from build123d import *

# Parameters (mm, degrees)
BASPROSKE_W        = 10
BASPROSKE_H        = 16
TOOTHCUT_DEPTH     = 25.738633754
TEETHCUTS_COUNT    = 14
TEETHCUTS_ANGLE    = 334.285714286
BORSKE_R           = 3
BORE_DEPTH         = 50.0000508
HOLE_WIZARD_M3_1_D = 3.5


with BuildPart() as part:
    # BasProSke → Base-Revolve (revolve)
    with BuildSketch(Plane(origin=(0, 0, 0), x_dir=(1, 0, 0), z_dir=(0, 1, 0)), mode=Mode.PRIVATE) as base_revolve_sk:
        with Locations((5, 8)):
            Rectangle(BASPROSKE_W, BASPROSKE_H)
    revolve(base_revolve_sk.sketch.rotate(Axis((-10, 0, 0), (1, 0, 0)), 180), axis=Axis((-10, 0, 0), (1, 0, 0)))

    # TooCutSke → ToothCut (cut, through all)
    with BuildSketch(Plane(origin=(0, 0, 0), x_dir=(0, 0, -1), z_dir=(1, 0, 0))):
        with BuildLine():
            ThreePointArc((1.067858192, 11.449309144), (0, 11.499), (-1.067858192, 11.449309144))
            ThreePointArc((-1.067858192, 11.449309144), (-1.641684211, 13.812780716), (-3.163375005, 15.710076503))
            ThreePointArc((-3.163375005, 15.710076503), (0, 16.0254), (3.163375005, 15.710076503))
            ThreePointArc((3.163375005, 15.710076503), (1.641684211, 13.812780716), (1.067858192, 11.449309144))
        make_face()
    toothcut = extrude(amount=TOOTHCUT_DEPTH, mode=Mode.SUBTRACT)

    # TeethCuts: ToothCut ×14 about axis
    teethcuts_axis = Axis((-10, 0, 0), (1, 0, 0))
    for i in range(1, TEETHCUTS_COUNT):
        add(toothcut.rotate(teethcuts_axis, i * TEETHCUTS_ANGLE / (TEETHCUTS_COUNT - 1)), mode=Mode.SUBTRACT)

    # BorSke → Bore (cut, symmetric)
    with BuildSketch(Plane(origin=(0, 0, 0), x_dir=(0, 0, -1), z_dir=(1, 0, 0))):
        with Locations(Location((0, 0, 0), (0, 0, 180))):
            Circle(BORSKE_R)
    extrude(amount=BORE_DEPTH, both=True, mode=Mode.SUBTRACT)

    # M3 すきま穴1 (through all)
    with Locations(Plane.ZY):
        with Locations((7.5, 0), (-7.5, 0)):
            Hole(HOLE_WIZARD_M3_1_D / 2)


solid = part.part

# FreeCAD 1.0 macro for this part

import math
import FreeCAD as App
import Part
import Sketcher
from FreeCAD import Vector

doc = App.newDocument("Part")
params = doc.addObject("Spreadsheet::Sheet", "Params")
for row, (alias, value) in enumerate([
    ("sketch1_width", "10 mm"),
    ("sketch1_height", "16 mm"),
    ("revolution_angle", "360 deg"),
    ("sketch2_radius", "5.6 mm"),
    ("sketch3_diameter", "6 mm"),
    ("pocket2_length", "100.000102 mm"),
    ("sketch4_diameter", "3.5 mm"),
    ("hole_diameter", "3.5 mm"),
], start=1):
    params.set(f"A{row}", alias)
    params.set(f"B{row}", "=" + value)
    params.setAlias(f"B{row}", alias)

body = doc.addObject("PartDesign::Body", "Body")

sketch1 = body.newObject("Sketcher::SketchObject", "Sketch")
sketch1.AttachmentSupport = (doc.getObject("XZ_Plane"), [""])
sketch1.MapMode = "FlatFace"
sketch1.addGeometry([
    Part.LineSegment(Vector(0, -16, 0), Vector(0, 0, 0)),
    Part.LineSegment(Vector(0, 0, 0), Vector(10, 0, 0)),
    Part.LineSegment(Vector(10, 0, 0), Vector(10, -16, 0)),
    Part.LineSegment(Vector(10, -16, 0), Vector(0, -16, 0)),
], False)
sketch1.addConstraint([
    Sketcher.Constraint("Coincident", 0, 2, 1, 1),
    Sketcher.Constraint("Coincident", 1, 2, 2, 1),
    Sketcher.Constraint("Coincident", 2, 2, 3, 1),
    Sketcher.Constraint("Coincident", 3, 2, 0, 1),
    Sketcher.Constraint("Vertical", 0),
    Sketcher.Constraint("Horizontal", 1),
    Sketcher.Constraint("Vertical", 2),
    Sketcher.Constraint("Horizontal", 3),
    Sketcher.Constraint("Coincident", 0, 2, -1, 1),
    Sketcher.Constraint("DistanceX", 1, 1, 1, 2, 10.0),
    Sketcher.Constraint("DistanceY", 0, 1, 0, 2, 16.0),
])
sketch1.setExpression("Constraints[9]", "Params.sketch1_width")
sketch1.setExpression("Constraints[10]", "Params.sketch1_height")
revolution = body.newObject("PartDesign::Revolution", "Revolution")
revolution.Profile = sketch1
revolution.ReferenceAxis = (sketch1, ["H_Axis"])
revolution.setExpression("Angle", "Params.revolution_angle")

sketch2 = body.newObject("Sketcher::SketchObject", "Sketch001")
sketch2.AttachmentSupport = (doc.getObject("YZ_Plane"), [""])
sketch2.MapMode = "FlatFace"
sketch2.addGeometry([
    Part.ArcOfCircle(Part.Circle(Vector(0, 0, 0), Vector(0, 0, 1), 11.5), math.radians(-5.33), math.radians(5.33)),
    Part.ArcOfCircle(Part.Circle(Vector(11.3, -6.7, 0), Vector(0, 0, 1), 5.6), math.radians(39), math.radians(89)),
    Part.ArcOfCircle(Part.Circle(Vector(0, 0, 0), Vector(0, 0, 1), 16), math.radians(-11), math.radians(11)),
    Part.ArcOfCircle(Part.Circle(Vector(11.3, 6.7, 0), Vector(0, 0, 1), 5.6), math.radians(-89), math.radians(-39)),
], False)
sketch2.addConstraint([
    Sketcher.Constraint("Coincident", 0, 1, 1, 2),
    Sketcher.Constraint("Coincident", 1, 1, 2, 1),
    Sketcher.Constraint("Coincident", 2, 2, 3, 2),
    Sketcher.Constraint("Coincident", 3, 1, 0, 2),
    Sketcher.Constraint("Coincident", 0, 3, -1, 1),
    Sketcher.Constraint("Coincident", 2, 3, -1, 1),
    Sketcher.Constraint("Equal", 1, 3),
    Sketcher.Constraint("Symmetric", 1, 3, 3, 3, -1),
    Sketcher.Constraint("Radius", 1, 5.6),
    Sketcher.Constraint("Radius", 0, 11.499),
    Sketcher.Constraint("Radius", 2, 16.0254),
    Sketcher.Constraint("DistanceX", -1, 1, 0, 1, 11.449309),
    Sketcher.Constraint("DistanceX", 1, 3, 1, 1, 4.36874),
])
sketch2.setExpression("Constraints[8]", "Params.sketch2_radius")
pocket1 = body.newObject("PartDesign::Pocket", "Pocket")
pocket1.Profile = sketch2
pocket1.Type = "ThroughAll"
pocket1.Reversed = True
doc.recompute()

polarpattern = body.newObject("PartDesign::PolarPattern", "PolarPattern")
polarpattern.Originals = [pocket1]
polarpattern.Axis = (doc.getObject("X_Axis"), [""])
polarpattern.Angle = 360
polarpattern.Occurrences = 14
body.Tip = polarpattern

sketch3 = body.newObject("Sketcher::SketchObject", "Sketch002")
sketch3.AttachmentSupport = (doc.getObject("YZ_Plane"), [""])
sketch3.MapMode = "FlatFace"
sketch3.addGeometry(Part.Circle(Vector(0, 0, 0), Vector(0, 0, 1), 3), False)
sketch3.addConstraint([
    Sketcher.Constraint("Coincident", 0, 3, -1, 1),
    Sketcher.Constraint("Diameter", 0, 6.0),
])
sketch3.setExpression("Constraints[1]", "Params.sketch3_diameter")
pocket2 = body.newObject("PartDesign::Pocket", "Pocket001")
pocket2.Profile = sketch3
pocket2.setExpression("Length", "Params.pocket2_length")
pocket2.Midplane = True

sketch4 = body.newObject("Sketcher::SketchObject", "Sketch003")
sketch4.AttachmentSupport = (doc.getObject("YZ_Plane"), [""])
sketch4.MapMode = "FlatFace"
sketch4.addGeometry([
    Part.Circle(Vector(0, 7.5, 0), Vector(0, 0, 1), 1.8),
    Part.Circle(Vector(0, -7.5, 0), Vector(0, 0, 1), 1.8),
], False)
sketch4.addConstraint([
    Sketcher.Constraint("Equal", 0, 1),
    Sketcher.Constraint("Symmetric", 0, 3, 1, 3, -1, 1),
    Sketcher.Constraint("PointOnObject", 0, 3, -2),
    Sketcher.Constraint("Diameter", 0, 3.5),
    Sketcher.Constraint("DistanceY", 1, 3, 0, 3, 15.0),
])
sketch4.setExpression("Constraints[3]", "Params.sketch4_diameter")
doc.recompute()
hole = body.newObject("PartDesign::Hole", "Hole")
hole.Profile = sketch4
hole.ThreadType = "None"
hole.setExpression("Diameter", "Params.hole_diameter")
hole.DepthType = "ThroughAll"
hole.Reversed = True

doc.recompute()
